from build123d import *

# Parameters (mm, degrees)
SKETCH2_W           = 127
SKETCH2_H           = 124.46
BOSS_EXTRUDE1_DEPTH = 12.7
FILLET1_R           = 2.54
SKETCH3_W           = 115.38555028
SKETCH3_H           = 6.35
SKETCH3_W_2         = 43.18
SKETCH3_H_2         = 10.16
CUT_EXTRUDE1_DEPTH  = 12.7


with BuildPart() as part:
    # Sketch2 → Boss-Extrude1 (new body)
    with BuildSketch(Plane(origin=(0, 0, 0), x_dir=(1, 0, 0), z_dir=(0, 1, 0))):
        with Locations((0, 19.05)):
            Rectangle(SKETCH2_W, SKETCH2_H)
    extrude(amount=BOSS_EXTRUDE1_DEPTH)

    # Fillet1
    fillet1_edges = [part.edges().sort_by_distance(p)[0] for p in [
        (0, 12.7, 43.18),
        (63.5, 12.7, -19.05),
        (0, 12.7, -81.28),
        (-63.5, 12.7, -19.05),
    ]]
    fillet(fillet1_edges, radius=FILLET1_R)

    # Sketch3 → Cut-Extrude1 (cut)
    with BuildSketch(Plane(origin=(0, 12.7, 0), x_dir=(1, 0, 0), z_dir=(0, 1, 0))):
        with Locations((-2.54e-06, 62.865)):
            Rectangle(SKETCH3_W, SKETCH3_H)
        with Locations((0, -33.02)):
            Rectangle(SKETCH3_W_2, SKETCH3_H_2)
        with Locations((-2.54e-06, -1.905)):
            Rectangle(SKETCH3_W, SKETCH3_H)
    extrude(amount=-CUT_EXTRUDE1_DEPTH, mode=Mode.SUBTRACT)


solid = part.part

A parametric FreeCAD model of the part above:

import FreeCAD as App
import Part
import Sketcher

V = App.Vector
Q = App.Units.Quantity


def edges_at(feature, points):
    """Names of the edges that pass closest to the given points."""
    edges = feature.Shape.Edges
    near = lambda p: min(range(len(edges)), key=lambda i: edges[i].distToShape(Part.Vertex(*p))[0])
    return sorted({f"Edge{near(p) + 1}" for p in points})


def add_polygon(sketch, points):
    """Adds a closed chain of lines whose ends are joined by coincident constraints."""
    first, n = sketch.GeometryCount, len(points)
    for a, b in zip(points, points[1:] + points[:1]):
        sketch.addGeometry(Part.LineSegment(App.Vector(*a, 0), App.Vector(*b, 0)), False)
    for i in range(n):
        sketch.addConstraint(Sketcher.Constraint("Coincident", first + i, 2, first + (i + 1) % n, 1))

doc = App.newDocument("Part")
body = doc.addObject("PartDesign::Body", "Body")

sketch1 = body.newObject("Sketcher::SketchObject", "Sketch")
sketch1.AttachmentSupport = (doc.getObject("XZ_Plane"), [""])
sketch1.MapMode = "FlatFace"
add_polygon(sketch1, [(-64, -81), (-64, 43), (64, 43), (64, -81)])
sketch1.addConstraint(Sketcher.Constraint("Vertical", 0))
sketch1.addConstraint(Sketcher.Constraint("Horizontal", 1))
sketch1.addConstraint(Sketcher.Constraint("Vertical", 2))
sketch1.addConstraint(Sketcher.Constraint("Horizontal", 3))
sketch1.addConstraint(Sketcher.Constraint("DistanceX", 1, 1, 1, 2, Q("5 in")))
sketch1.addConstraint(Sketcher.Constraint("DistanceY", 0, 1, 0, 2, Q("4.9 in")))
sketch1.addConstraint(Sketcher.Constraint("DistanceX", 0, 2, -1, 1, Q("2.5 in")))
sketch1.addConstraint(Sketcher.Constraint("DistanceY", -1, 1, 0, 2, Q("1.7 in")))
pad1 = body.newObject("PartDesign::Pad", "Pad")
pad1.Profile = sketch1
pad1.Length = Q("0.5 in")
pad1.Reversed = True
doc.recompute()

fillet = body.newObject("PartDesign::Fillet", "Fillet")
fillet.Base = (pad1, edges_at(pad1, [
    (0, 12.7, 43.18),
    (63.5, 12.7, -19.05),
    (0, 12.7, -81.28),
    (-63.5, 12.7, -19.05),
]))
fillet.Radius = Q("0.1 in")

sketch2 = body.newObject("Sketcher::SketchObject", "Sketch001")
sketch2.AttachmentSupport = (doc.getObject("XZ_Plane"), [""])
sketch2.MapMode = "FlatFace"
sketch2.AttachmentOffset = App.Placement(V(0, 0, -0.5 * 25.4), App.Rotation())
add_polygon(sketch2, [(-58, -66), (-58, -60), (58, -60), (58, -66)])
add_polygon(sketch2, [(-22, 28), (-22, 38), (22, 38), (22, 28)])
add_polygon(sketch2, [(-58, -1), (-58, 5), (58, 5), (58, -1)])
sketch2.addConstraint(Sketcher.Constraint("Vertical", 0))
sketch2.addConstraint(Sketcher.Constraint("Horizontal", 1))
sketch2.addConstraint(Sketcher.Constraint("Vertical", 2))
sketch2.addConstraint(Sketcher.Constraint("Horizontal", 3))
sketch2.addConstraint(Sketcher.Constraint("Vertical", 4))
sketch2.addConstraint(Sketcher.Constraint("Horizontal", 5))
sketch2.addConstraint(Sketcher.Constraint("Vertical", 6))
sketch2.addConstraint(Sketcher.Constraint("Horizontal", 7))
sketch2.addConstraint(Sketcher.Constraint("Vertical", 8))
sketch2.addConstraint(Sketcher.Constraint("Horizontal", 9))
sketch2.addConstraint(Sketcher.Constraint("Vertical", 10))
sketch2.addConstraint(Sketcher.Constraint("Horizontal", 11))
sketch2.addConstraint(Sketcher.Constraint("Vertical", 3, 2, 8, 2))
sketch2.addConstraint(Sketcher.Constraint("Vertical", 2, 2, 9, 2))
sketch2.addConstraint(Sketcher.Constraint("Equal", 2, 8))
sketch2.addConstraint(Sketcher.Constraint("DistanceX", 5, 1, 5, 2, Q("1.7 in")))
sketch2.addConstraint(Sketcher.Constraint("DistanceY", 4, 1, 4, 2, Q("0.4 in")))
sketch2.addConstraint(Sketcher.Constraint("DistanceY", 0, 1, 0, 2, Q("0.25 in")))
sketch2.addConstraint(Sketcher.Constraint("DistanceY", 2, 2, -1, 1, Q("2.6 in")))
sketch2.addConstraint(Sketcher.Constraint("DistanceY", -1, 1, 4, 2, Q("1.5 in")))
sketch2.addConstraint(Sketcher.Constraint("DistanceY", -1, 1, 8, 2, Q("0.2 in")))
sketch2.addConstraint(Sketcher.Constraint("DistanceX", 4, 2, -1, 1, Q("0.85 in")))
sketch2.addConstraint(Sketcher.Constraint("DistanceX", 1, 1, 1, 2, Q("115.38555 mm")))
sketch2.addConstraint(Sketcher.Constraint("DistanceX", 0, 2, -1, 1, Q("57.692778 mm")))
pocket1 = body.newObject("PartDesign::Pocket", "Pocket")
pocket1.Profile = sketch2
pocket1.Length = Q("0.5 in")
pocket1.Reversed = True

doc.recompute()
